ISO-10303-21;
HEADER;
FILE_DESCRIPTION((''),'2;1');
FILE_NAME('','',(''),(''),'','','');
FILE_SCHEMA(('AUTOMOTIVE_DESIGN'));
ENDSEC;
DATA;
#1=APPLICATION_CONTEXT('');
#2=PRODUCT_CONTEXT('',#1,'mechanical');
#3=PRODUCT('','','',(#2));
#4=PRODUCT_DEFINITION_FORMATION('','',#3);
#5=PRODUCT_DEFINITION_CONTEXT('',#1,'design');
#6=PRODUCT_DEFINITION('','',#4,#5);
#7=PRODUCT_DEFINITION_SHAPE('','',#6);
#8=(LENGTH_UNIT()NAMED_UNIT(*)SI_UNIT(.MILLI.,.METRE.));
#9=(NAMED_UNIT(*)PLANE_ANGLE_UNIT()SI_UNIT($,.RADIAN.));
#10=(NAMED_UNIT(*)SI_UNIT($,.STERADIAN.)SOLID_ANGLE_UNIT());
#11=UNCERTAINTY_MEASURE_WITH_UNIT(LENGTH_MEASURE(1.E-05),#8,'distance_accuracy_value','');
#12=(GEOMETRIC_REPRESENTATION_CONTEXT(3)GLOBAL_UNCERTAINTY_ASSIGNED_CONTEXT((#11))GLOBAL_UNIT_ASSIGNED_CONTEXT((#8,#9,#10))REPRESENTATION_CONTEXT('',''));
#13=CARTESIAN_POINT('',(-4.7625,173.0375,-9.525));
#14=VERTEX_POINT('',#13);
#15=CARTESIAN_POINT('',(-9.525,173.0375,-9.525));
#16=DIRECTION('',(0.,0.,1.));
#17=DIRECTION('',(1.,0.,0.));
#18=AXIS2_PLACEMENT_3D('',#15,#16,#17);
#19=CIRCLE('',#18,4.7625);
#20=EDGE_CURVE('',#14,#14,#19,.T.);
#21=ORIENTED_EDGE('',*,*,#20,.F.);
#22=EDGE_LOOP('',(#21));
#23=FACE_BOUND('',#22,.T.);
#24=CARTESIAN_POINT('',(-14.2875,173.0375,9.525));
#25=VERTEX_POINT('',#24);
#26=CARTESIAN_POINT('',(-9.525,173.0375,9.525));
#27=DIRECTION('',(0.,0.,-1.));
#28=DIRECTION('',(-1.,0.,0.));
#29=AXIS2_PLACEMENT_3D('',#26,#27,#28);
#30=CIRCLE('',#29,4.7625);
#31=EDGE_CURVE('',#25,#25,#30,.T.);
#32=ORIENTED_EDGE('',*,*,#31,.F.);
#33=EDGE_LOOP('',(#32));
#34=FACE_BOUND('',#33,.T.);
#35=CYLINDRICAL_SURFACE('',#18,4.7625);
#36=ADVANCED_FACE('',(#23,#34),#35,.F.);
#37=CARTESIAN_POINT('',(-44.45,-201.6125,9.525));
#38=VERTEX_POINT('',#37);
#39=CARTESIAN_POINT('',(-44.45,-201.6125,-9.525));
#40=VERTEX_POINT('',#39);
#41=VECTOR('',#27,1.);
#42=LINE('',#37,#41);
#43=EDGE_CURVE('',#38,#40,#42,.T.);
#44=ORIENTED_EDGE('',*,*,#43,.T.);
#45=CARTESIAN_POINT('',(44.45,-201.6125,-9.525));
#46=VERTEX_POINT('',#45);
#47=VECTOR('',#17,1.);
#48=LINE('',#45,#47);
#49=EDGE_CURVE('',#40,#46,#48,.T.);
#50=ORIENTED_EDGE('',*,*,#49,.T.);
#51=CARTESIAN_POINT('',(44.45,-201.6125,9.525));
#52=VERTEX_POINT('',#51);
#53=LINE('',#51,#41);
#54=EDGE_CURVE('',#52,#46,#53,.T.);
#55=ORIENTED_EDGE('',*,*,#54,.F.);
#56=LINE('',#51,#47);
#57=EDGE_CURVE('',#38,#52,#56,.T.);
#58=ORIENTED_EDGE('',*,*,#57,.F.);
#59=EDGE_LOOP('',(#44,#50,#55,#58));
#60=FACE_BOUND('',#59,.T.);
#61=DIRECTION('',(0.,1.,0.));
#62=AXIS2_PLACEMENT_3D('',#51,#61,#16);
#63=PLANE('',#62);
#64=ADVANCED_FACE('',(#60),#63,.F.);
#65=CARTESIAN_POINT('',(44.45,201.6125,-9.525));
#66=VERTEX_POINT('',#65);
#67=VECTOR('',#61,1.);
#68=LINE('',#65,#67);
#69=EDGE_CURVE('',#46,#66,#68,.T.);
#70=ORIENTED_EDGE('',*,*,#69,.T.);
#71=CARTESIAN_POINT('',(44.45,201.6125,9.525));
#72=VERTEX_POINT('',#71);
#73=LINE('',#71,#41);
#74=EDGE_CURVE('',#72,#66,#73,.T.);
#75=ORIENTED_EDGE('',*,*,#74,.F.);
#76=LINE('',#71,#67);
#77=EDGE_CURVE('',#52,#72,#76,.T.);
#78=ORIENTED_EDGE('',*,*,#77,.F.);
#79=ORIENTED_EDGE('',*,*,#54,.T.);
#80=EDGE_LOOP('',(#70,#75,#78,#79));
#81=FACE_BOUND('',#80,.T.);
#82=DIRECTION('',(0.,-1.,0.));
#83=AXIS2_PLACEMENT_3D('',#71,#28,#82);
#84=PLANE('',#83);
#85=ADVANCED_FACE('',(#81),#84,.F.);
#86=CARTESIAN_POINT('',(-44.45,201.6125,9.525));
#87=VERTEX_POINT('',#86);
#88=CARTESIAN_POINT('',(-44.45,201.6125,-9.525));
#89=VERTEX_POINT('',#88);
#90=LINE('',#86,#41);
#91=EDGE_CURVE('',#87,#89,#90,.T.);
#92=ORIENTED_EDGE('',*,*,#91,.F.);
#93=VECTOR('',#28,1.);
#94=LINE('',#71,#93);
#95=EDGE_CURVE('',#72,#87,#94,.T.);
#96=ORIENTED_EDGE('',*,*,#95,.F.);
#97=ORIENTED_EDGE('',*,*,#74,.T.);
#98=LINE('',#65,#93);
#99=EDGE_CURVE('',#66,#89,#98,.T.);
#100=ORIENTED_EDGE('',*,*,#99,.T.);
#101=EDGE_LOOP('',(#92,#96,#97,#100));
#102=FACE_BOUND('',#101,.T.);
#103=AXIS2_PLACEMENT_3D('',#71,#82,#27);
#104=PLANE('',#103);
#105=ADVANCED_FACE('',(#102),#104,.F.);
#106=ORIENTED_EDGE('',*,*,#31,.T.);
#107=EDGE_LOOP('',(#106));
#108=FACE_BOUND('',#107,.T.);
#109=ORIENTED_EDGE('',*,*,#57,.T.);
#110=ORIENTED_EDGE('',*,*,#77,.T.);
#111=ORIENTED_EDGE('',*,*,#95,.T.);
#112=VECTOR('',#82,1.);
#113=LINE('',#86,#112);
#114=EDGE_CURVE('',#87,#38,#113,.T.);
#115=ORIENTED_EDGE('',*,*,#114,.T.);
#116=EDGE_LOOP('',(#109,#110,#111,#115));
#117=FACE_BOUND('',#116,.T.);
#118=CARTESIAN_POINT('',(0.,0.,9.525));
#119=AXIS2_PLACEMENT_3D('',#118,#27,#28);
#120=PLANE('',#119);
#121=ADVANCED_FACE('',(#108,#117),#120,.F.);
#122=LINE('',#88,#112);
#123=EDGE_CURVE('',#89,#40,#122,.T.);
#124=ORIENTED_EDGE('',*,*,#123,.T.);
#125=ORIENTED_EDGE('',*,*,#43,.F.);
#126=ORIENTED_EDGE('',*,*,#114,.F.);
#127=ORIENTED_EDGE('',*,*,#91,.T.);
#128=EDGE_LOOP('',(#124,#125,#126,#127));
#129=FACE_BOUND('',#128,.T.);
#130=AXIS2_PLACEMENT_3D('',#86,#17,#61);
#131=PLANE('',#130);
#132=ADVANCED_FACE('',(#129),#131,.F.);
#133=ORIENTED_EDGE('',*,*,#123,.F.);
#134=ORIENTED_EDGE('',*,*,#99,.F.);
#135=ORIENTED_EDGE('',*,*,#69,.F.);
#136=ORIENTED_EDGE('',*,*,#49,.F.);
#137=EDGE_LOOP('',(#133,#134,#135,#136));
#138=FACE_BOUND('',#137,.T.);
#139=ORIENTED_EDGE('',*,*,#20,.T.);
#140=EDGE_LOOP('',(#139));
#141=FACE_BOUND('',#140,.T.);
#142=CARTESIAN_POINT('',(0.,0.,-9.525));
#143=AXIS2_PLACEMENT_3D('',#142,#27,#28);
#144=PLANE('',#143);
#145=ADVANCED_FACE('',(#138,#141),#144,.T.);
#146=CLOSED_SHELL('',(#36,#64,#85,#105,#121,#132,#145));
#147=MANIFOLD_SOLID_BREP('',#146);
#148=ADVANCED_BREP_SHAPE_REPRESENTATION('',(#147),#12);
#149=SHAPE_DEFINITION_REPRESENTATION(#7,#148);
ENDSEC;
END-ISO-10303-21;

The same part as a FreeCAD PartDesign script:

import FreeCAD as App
import Part
import Sketcher
from FreeCAD import Vector
Q = App.Units.Quantity

doc = App.newDocument("Part")
params = doc.addObject("Spreadsheet::Sheet", "Params")
for row, (alias, value) in enumerate([
    ("sketch1_width", "3.5 in"),
    ("sketch1_height", "15.875 in"),
    ("pad1_length", "0.75 in"),
    ("sketch2_diameter", "0.375 in"),
], start=1):
    params.set(f"A{row}", alias)
    params.set(f"B{row}", "=" + value)
    params.setAlias(f"B{row}", alias)

body = doc.addObject("PartDesign::Body", "Body")

# Sketch on XY plane
sketch1 = body.newObject("Sketcher::SketchObject", "Sketch")
sketch1.AttachmentSupport = (doc.getObject("XY_Plane"), [""])
sketch1.MapMode = "FlatFace"
sketch1.addGeometry(Part.LineSegment(Vector(-44, 202, 0), Vector(-44, -202, 0)), False)
sketch1.addGeometry(Part.LineSegment(Vector(-44, -202, 0), Vector(44, -202, 0)), False)
sketch1.addGeometry(Part.LineSegment(Vector(44, -202, 0), Vector(44, 202, 0)), False)
sketch1.addGeometry(Part.LineSegment(Vector(44, 202, 0), Vector(-44, 202, 0)), False)
sketch1.addConstraint(Sketcher.Constraint("Coincident", 0, 2, 1, 1))
sketch1.addConstraint(Sketcher.Constraint("Coincident", 1, 2, 2, 1))
sketch1.addConstraint(Sketcher.Constraint("Coincident", 2, 2, 3, 1))
sketch1.addConstraint(Sketcher.Constraint("Coincident", 3, 2, 0, 1))
sketch1.addConstraint(Sketcher.Constraint("Vertical", 0))
sketch1.addConstraint(Sketcher.Constraint("Horizontal", 1))
sketch1.addConstraint(Sketcher.Constraint("Vertical", 2))
sketch1.addConstraint(Sketcher.Constraint("Horizontal", 3))
sketch1.addConstraint(Sketcher.Constraint("Symmetric", 0, 2, 2, 2, -1, 1))
sketch1.addConstraint(Sketcher.Constraint("DistanceX", 1, 1, 1, 2, Q("3.5 in")))
sketch1.addConstraint(Sketcher.Constraint("DistanceY", 0, 2, 0, 1, Q("15.875 in")))
sketch1.setExpression("Constraints[9]", "Params.sketch1_width")
sketch1.setExpression("Constraints[10]", "Params.sketch1_height")
pad1 = body.newObject("PartDesign::Pad", "Pad")
pad1.Profile = sketch1
pad1.setExpression("Length", "Params.pad1_length")
pad1.Midplane = True

# Sketch on XY plane
sketch2 = body.newObject("Sketcher::SketchObject", "Sketch001")
sketch2.AttachmentSupport = (doc.getObject("XY_Plane"), [""])
sketch2.MapMode = "FlatFace"
sketch2.AttachmentOffset = App.Placement(Vector(0, 0, 0.375 * 25.4), App.Rotation())
sketch2.addGeometry(Part.Circle(Vector(-9.5, 173, 0), Vector(0, 0, 1), 4.8), False)
sketch2.addConstraint(Sketcher.Constraint("Diameter", 0, Q("0.375 in")))
sketch2.addConstraint(Sketcher.Constraint("DistanceX", 0, 3, -1, 1, Q("0.375 in")))
sketch2.addConstraint(Sketcher.Constraint("DistanceY", -1, 1, 0, 3, Q("6.8125 in")))
sketch2.setExpression("Constraints[0]", "Params.sketch2_diameter")
pocket1 = body.newObject("PartDesign::Pocket", "Pocket")
pocket1.Profile = sketch2
pocket1.Type = "ThroughAll"
pocket1.Midplane = True

doc.recompute()
